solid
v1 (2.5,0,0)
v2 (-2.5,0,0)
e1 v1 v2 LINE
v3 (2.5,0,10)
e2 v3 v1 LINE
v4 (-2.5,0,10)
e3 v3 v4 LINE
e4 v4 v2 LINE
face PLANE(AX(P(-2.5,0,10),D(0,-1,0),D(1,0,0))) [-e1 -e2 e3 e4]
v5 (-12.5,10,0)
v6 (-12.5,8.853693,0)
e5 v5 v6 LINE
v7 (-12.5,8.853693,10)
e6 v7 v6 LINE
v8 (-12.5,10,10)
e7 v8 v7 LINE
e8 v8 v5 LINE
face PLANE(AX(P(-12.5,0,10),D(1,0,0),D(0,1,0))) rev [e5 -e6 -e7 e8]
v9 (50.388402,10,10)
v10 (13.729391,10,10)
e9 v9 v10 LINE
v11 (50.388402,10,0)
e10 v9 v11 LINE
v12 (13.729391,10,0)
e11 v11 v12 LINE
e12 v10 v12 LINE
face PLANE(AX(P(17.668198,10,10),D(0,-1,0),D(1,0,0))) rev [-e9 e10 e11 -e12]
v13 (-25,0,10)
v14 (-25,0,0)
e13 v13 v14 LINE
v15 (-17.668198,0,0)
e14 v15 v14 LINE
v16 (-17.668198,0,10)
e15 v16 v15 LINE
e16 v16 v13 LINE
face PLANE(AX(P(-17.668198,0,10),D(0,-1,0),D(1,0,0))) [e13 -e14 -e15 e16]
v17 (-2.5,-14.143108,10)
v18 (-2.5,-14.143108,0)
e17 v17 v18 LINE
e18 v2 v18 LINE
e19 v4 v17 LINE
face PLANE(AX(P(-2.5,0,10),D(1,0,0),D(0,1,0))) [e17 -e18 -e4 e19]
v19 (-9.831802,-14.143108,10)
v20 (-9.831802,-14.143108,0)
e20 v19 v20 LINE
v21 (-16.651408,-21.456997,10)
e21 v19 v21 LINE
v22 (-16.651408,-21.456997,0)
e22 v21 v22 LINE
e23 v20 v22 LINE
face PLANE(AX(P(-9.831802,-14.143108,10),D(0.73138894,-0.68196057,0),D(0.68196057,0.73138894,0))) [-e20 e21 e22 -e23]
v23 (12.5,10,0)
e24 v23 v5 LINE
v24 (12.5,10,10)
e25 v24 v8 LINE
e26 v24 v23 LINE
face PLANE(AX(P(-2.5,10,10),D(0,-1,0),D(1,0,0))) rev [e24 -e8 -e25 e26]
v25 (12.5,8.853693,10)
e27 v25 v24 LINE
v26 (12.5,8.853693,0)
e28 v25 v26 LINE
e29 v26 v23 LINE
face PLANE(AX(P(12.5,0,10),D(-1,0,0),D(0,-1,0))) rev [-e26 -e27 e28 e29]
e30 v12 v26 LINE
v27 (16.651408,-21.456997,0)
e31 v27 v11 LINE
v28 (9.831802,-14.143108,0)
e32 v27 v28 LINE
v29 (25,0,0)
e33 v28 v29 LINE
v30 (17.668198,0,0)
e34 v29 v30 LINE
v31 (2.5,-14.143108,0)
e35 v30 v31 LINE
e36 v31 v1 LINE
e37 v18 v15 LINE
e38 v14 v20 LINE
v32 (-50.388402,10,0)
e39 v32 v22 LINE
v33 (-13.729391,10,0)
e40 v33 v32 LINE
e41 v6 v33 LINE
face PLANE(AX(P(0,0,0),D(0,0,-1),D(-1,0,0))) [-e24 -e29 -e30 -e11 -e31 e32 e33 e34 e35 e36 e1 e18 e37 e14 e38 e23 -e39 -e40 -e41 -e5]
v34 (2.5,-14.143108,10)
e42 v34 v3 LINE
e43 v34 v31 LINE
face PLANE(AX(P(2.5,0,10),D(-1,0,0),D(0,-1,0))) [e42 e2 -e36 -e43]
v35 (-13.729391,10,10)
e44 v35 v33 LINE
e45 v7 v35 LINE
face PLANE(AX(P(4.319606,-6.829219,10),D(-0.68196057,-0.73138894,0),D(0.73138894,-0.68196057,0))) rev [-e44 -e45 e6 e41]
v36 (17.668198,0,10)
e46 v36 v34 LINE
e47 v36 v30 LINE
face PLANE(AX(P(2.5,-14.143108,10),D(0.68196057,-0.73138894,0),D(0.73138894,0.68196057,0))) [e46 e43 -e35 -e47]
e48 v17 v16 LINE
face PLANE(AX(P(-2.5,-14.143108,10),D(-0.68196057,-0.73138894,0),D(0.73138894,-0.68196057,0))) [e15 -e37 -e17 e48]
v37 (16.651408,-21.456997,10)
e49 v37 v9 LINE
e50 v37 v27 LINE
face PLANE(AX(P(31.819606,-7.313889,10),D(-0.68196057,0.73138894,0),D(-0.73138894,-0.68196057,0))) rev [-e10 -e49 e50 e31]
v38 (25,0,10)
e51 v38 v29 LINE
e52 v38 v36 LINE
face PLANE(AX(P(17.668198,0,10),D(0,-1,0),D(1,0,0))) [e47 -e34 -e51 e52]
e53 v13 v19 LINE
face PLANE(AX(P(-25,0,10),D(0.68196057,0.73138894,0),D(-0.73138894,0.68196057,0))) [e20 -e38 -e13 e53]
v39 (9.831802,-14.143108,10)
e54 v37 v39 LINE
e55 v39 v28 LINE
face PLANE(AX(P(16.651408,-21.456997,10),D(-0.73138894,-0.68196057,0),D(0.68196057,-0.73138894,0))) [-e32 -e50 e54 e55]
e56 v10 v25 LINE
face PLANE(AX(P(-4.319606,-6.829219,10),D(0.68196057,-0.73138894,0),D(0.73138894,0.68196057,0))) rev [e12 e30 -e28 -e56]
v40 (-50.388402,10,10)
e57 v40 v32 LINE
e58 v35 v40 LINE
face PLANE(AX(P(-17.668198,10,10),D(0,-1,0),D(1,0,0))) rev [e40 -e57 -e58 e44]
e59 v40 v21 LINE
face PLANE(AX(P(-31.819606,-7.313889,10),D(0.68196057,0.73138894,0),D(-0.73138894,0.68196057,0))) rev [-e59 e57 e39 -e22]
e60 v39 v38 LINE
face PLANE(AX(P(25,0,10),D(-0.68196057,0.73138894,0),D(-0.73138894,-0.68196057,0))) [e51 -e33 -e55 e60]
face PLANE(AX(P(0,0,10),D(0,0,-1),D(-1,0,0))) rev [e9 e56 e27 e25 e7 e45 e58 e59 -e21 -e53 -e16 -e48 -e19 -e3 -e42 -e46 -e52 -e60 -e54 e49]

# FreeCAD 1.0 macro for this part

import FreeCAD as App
import Part
import Sketcher

V = App.Vector

doc = App.newDocument("Part")
body = doc.addObject("PartDesign::Body", "Body")

sketch1 = doc.addObject("Sketcher::SketchObject", "Sketch")
body.addObject(sketch1)
sketch1.AttachmentSupport = (doc.XY_Plane, [""])
sketch1.MapMode = "FlatFace"
sketch1.addGeometry(Part.LineSegment(V(-9.8, -14.1, 0), V(-25, 0, 0)), False)
sketch1.addGeometry(Part.LineSegment(V(-25, 0, 0), V(-17.7, 0, 0)), False)
sketch1.addGeometry(Part.LineSegment(V(-17.7, 0, 0), V(-2.5, -14.1, 0)), False)
sketch1.addGeometry(Part.LineSegment(V(-2.5, -14.1, 0), V(-2.5, 0, 0)), False)
sketch1.addGeometry(Part.LineSegment(V(-2.5, 0, 0), V(2.5, 0, 0)), False)
sketch1.addGeometry(Part.LineSegment(V(2.5, 0, 0), V(2.5, -14.1, 0)), False)
sketch1.addGeometry(Part.LineSegment(V(2.5, -14.1, 0), V(17.7, 0, 0)), False)
sketch1.addGeometry(Part.LineSegment(V(17.7, 0, 0), V(25, 0, 0)), False)
sketch1.addGeometry(Part.LineSegment(V(25, 0, 0), V(9.8, -14.1, 0)), False)
sketch1.addGeometry(Part.LineSegment(V(9.8, -14.1, 0), V(16.7, -21.5, 0)), False)
sketch1.addGeometry(Part.LineSegment(V(16.7, -21.5, 0), V(50.4, 10, 0)), False)
sketch1.addGeometry(Part.LineSegment(V(50.4, 10, 0), V(13.7, 10, 0)), False)
sketch1.addGeometry(Part.LineSegment(V(13.7, 10, 0), V(12.5, 8.9, 0)), False)
sketch1.addGeometry(Part.LineSegment(V(12.5, 8.9, 0), V(12.5, 10, 0)), False)
sketch1.addGeometry(Part.LineSegment(V(12.5, 10, 0), V(-12.5, 10, 0)), False)
sketch1.addGeometry(Part.LineSegment(V(-12.5, 10, 0), V(-12.5, 8.9, 0)), False)
sketch1.addGeometry(Part.LineSegment(V(-12.5, 8.9, 0), V(-13.7, 10, 0)), False)
sketch1.addGeometry(Part.LineSegment(V(-13.7, 10, 0), V(-50.4, 10, 0)), False)
sketch1.addGeometry(Part.LineSegment(V(-50.4, 10, 0), V(-16.7, -21.5, 0)), False)
sketch1.addGeometry(Part.LineSegment(V(-16.7, -21.5, 0), V(-9.8, -14.1, 0)), False)
sketch1.addConstraint(Sketcher.Constraint("Coincident", 0, 2, 1, 1))
sketch1.addConstraint(Sketcher.Constraint("Coincident", 1, 2, 2, 1))
sketch1.addConstraint(Sketcher.Constraint("Coincident", 2, 2, 3, 1))
sketch1.addConstraint(Sketcher.Constraint("Coincident", 3, 2, 4, 1))
sketch1.addConstraint(Sketcher.Constraint("Coincident", 4, 2, 5, 1))
sketch1.addConstraint(Sketcher.Constraint("Coincident", 5, 2, 6, 1))
sketch1.addConstraint(Sketcher.Constraint("Coincident", 6, 2, 7, 1))
sketch1.addConstraint(Sketcher.Constraint("Coincident", 7, 2, 8, 1))
sketch1.addConstraint(Sketcher.Constraint("Coincident", 8, 2, 9, 1))
sketch1.addConstraint(Sketcher.Constraint("Coincident", 9, 2, 10, 1))
sketch1.addConstraint(Sketcher.Constraint("Coincident", 10, 2, 11, 1))
sketch1.addConstraint(Sketcher.Constraint("Coincident", 11, 2, 12, 1))
sketch1.addConstraint(Sketcher.Constraint("Coincident", 12, 2, 13, 1))
sketch1.addConstraint(Sketcher.Constraint("Coincident", 13, 2, 14, 1))
sketch1.addConstraint(Sketcher.Constraint("Coincident", 14, 2, 15, 1))
sketch1.addConstraint(Sketcher.Constraint("Coincident", 15, 2, 16, 1))
sketch1.addConstraint(Sketcher.Constraint("Coincident", 16, 2, 17, 1))
sketch1.addConstraint(Sketcher.Constraint("Coincident", 17, 2, 18, 1))
sketch1.addConstraint(Sketcher.Constraint("Coincident", 18, 2, 19, 1))
sketch1.addConstraint(Sketcher.Constraint("Coincident", 19, 2, 0, 1))
sketch1.addConstraint(Sketcher.Constraint("Horizontal", 1))
sketch1.addConstraint(Sketcher.Constraint("Vertical", 3))
sketch1.addConstraint(Sketcher.Constraint("Horizontal", 4))
sketch1.addConstraint(Sketcher.Constraint("Vertical", 5))
sketch1.addConstraint(Sketcher.Constraint("Horizontal", 7))
sketch1.addConstraint(Sketcher.Constraint("Horizontal", 11))
sketch1.addConstraint(Sketcher.Constraint("Vertical", 13))
sketch1.addConstraint(Sketcher.Constraint("Horizontal", 14))
sketch1.addConstraint(Sketcher.Constraint("Vertical", 15))
sketch1.addConstraint(Sketcher.Constraint("Horizontal", 17))
sketch1.addConstraint(Sketcher.Constraint("Symmetric", 3, 2, 4, 2, -1, 1))
sketch1.addConstraint(Sketcher.Constraint("Symmetric", 1, 2, 6, 2, -1, 1))
sketch1.addConstraint(Sketcher.Constraint("Symmetric", 0, 2, 7, 2, -2))
sketch1.addConstraint(Sketcher.Constraint("Symmetric", 12, 2, 15, 2, -2))
sketch1.addConstraint(Sketcher.Constraint("Symmetric", 11, 2, 16, 2, -2))
sketch1.addConstraint(Sketcher.Constraint("Symmetric", 9, 2, 18, 2, -2))
sketch1.addConstraint(Sketcher.Constraint("Symmetric", 8, 2, 19, 2, -2))
sketch1.addConstraint(Sketcher.Constraint("Parallel", 0, 2))
sketch1.addConstraint(Sketcher.Constraint("Parallel", 6, 8))
sketch1.addConstraint(Sketcher.Constraint("Perpendicular", 8, 9))
sketch1.addConstraint(Sketcher.Constraint("Perpendicular", 9, 10))
sketch1.addConstraint(Sketcher.Constraint("Parallel", 10, 12))
sketch1.addConstraint(Sketcher.Constraint("Parallel", 16, 18))
sketch1.addConstraint(Sketcher.Constraint("Horizontal", 5, 2, 8, 2))
sketch1.addConstraint(Sketcher.Constraint("Horizontal", 11, 2, 13, 2))
sketch1.addConstraint(Sketcher.Constraint("DistanceX", 4, 1, 4, 2, 5.0))
sketch1.addConstraint(Sketcher.Constraint("DistanceX", 14, 2, 14, 1, 25.0))
sketch1.addConstraint(Sketcher.Constraint("Distance", 9, 10.0))
sketch1.addConstraint(Sketcher.Constraint("DistanceX", 0, 2, -1, 1, 25.0))
sketch1.addConstraint(Sketcher.Constraint("DistanceY", -1, 1, 10, 2, 10.0))
sketch1.addConstraint(Sketcher.Constraint("Distance", 12, 1.6809))
sketch1.addConstraint(Sketcher.Constraint("DistanceX", 11, 2, 11, 1, 36.659011))
sketch1.addConstraint(Sketcher.Constraint("DistanceY", 3, 1, 3, 2, 14.143108))
pad1 = doc.addObject("PartDesign::Pad", "Pad")
body.addObject(pad1)
pad1.Profile = sketch1
pad1.Length = 10

doc.recompute()
